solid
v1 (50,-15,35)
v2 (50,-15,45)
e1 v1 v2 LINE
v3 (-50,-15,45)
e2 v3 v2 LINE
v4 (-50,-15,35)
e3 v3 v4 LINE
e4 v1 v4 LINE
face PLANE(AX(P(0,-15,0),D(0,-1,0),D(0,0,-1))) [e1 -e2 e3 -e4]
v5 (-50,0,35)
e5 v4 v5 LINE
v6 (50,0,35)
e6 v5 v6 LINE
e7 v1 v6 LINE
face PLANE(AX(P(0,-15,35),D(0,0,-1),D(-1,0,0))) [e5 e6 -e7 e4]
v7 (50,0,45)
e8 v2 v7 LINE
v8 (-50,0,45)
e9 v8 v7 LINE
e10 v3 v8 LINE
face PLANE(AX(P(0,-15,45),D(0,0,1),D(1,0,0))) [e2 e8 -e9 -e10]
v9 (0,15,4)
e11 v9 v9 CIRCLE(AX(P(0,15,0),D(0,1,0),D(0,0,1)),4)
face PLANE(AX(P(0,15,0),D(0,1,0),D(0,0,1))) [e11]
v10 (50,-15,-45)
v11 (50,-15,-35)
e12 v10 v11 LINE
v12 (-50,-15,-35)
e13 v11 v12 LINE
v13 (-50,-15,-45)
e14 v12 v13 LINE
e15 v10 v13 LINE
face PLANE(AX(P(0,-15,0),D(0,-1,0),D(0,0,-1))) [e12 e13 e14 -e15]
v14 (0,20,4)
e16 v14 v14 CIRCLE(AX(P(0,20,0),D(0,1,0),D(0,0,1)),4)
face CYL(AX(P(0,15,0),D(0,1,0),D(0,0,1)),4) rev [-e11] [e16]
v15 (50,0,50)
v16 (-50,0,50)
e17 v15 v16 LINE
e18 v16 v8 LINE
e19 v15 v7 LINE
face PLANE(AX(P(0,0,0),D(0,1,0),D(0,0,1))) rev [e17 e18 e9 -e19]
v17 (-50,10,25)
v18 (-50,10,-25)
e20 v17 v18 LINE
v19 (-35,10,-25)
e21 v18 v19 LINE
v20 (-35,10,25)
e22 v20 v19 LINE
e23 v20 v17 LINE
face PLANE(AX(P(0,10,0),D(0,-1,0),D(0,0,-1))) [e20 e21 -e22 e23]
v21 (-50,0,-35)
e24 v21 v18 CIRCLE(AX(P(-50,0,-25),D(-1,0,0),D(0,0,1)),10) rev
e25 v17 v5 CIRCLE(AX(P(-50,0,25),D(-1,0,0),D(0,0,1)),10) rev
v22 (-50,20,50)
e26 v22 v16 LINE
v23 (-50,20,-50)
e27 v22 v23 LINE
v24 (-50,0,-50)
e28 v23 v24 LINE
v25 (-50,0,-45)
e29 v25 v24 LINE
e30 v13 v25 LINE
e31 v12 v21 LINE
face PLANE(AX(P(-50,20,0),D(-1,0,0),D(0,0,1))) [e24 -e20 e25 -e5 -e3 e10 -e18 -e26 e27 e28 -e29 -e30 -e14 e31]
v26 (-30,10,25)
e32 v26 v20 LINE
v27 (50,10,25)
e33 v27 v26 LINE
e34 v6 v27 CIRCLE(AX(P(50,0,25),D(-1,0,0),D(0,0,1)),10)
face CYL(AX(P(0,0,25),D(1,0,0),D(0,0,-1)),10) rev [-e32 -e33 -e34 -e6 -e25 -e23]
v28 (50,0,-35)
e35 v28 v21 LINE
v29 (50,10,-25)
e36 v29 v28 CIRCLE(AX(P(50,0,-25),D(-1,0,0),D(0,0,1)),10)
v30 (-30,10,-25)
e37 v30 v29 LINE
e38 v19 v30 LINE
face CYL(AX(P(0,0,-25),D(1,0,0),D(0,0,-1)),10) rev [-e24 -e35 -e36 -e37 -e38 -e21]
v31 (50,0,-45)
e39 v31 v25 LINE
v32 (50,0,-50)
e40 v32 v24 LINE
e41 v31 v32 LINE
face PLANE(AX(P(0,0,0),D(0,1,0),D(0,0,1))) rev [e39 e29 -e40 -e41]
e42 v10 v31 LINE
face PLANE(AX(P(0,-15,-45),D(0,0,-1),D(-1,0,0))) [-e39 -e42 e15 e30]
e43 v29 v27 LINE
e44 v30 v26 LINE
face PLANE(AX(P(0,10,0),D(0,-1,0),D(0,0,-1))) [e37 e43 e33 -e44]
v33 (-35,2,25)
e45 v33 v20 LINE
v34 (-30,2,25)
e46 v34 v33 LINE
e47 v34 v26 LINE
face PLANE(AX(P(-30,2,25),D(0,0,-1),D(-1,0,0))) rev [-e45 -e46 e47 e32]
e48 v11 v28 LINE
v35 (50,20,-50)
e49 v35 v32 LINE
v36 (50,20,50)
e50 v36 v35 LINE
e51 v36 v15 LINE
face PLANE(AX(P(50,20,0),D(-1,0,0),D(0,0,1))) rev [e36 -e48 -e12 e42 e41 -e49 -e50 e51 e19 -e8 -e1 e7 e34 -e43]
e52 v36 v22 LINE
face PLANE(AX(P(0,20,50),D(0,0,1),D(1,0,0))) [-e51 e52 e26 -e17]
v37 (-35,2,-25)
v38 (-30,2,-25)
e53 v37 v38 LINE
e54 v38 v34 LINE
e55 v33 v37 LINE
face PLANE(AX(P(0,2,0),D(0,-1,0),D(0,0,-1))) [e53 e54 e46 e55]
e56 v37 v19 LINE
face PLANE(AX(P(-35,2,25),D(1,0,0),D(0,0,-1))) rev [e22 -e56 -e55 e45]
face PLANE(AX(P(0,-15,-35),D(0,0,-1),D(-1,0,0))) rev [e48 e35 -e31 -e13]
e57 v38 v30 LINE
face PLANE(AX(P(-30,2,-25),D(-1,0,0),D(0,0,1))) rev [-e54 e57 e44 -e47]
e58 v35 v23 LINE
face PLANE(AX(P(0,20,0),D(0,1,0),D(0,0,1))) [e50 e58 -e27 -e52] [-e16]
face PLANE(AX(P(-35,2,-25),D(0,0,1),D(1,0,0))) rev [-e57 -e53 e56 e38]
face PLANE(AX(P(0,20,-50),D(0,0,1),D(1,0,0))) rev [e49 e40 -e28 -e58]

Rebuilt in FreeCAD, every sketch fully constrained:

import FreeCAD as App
import Part
import Sketcher


def edges_at(feature, points):
    """Names of the edges that pass closest to the given points."""
    edges = feature.Shape.Edges
    near = lambda p: min(range(len(edges)), key=lambda i: edges[i].distToShape(Part.Vertex(*p))[0])
    return sorted({f"Edge{near(p) + 1}" for p in points})


def add_polygon(sketch, points):
    """Adds a closed chain of lines whose ends are joined by coincident constraints."""
    first, n = sketch.GeometryCount, len(points)
    for a, b in zip(points, points[1:] + points[:1]):
        sketch.addGeometry(Part.LineSegment(App.Vector(*a, 0), App.Vector(*b, 0)), False)
    for i in range(n):
        sketch.addConstraint(Sketcher.Constraint("Coincident", first + i, 2, first + (i + 1) % n, 1))

doc = App.newDocument("Part")
body = doc.addObject("PartDesign::Body", "Body")

# Sketch on XZ plane
sketch1 = body.newObject("Sketcher::SketchObject", "Sketch")
sketch1.AttachmentSupport = (doc.getObject("XZ_Plane"), [""])
sketch1.MapMode = "FlatFace"
add_polygon(sketch1, [(-50, -50), (-50, 50), (50, 50), (50, -50)])  # lines 0-3
sketch1.addConstraint([
    Sketcher.Constraint("Vertical", 0),
    Sketcher.Constraint("Horizontal", 1),
    Sketcher.Constraint("Vertical", 2),
    Sketcher.Constraint("Horizontal", 3),
    Sketcher.Constraint("Symmetric", 0, 2, 2, 2, -1, 1),
    Sketcher.Constraint("Equal", 3, 0),
    Sketcher.Constraint("DistanceX", 1, 1, 1, 2, 100.0),
])
pad1 = body.newObject("PartDesign::Pad", "Pad")
pad1.Profile = sketch1
pad1.Length = 20
pad1.Reversed = True

# Sketch on XZ plane
sketch2 = body.newObject("Sketcher::SketchObject", "Sketch001")
sketch2.AttachmentSupport = (doc.getObject("XZ_Plane"), [""])
sketch2.MapMode = "FlatFace"
sketch2.AttachmentOffset = App.Placement(App.Vector(0, 0, -20), App.Rotation())
sketch2.addGeometry(Part.Circle(App.Vector(0, 0, 0), App.Vector(0, 0, 1), 4), False)
sketch2.addConstraint([
    Sketcher.Constraint("Coincident", 0, 3, -1, 1),
    Sketcher.Constraint("Diameter", 0, 8.0),
])
pocket1 = body.newObject("PartDesign::Pocket", "Pocket")
pocket1.Profile = sketch2
pocket1.Length = 5
pocket1.Reversed = True

# Sketch on XZ plane
sketch3 = body.newObject("Sketcher::SketchObject", "Sketch002")
sketch3.AttachmentSupport = (doc.getObject("XZ_Plane"), [""])
sketch3.MapMode = "FlatFace"
add_polygon(sketch3, [(-50, -35), (-50, -45), (50, -45), (50, -35)])  # lines 0-3
add_polygon(sketch3, [(-50, 45), (-50, 35), (50, 35), (50, 45)])  # lines 4-7
sketch3.addConstraint([
    Sketcher.Constraint("Vertical", 0),
    Sketcher.Constraint("Horizontal", 1),
    Sketcher.Constraint("Vertical", 2),
    Sketcher.Constraint("Horizontal", 3),
    Sketcher.Constraint("Vertical", 4),
    Sketcher.Constraint("Horizontal", 5),
    Sketcher.Constraint("Vertical", 6),
    Sketcher.Constraint("Horizontal", 7),
    Sketcher.Constraint("Symmetric", 2, 2, 4, 2, -1, 1),
    Sketcher.Constraint("Symmetric", 0, 2, 6, 2, -1, 1),
    Sketcher.Constraint("Vertical", 3, 2, 4, 2),
    Sketcher.Constraint("DistanceX", 1, 1, 1, 2, 100.0),
    Sketcher.Constraint("DistanceY", 0, 2, 0, 1, 10.0),
    Sketcher.Constraint("DistanceY", 0, 2, -1, 1, 45.0),
])
pad2 = body.newObject("PartDesign::Pad", "Pad001")
pad2.Profile = sketch3
pad2.Length = 15

# Sketch on XZ plane
sketch4 = body.newObject("Sketcher::SketchObject", "Sketch003")
sketch4.AttachmentSupport = (doc.getObject("XZ_Plane"), [""])
sketch4.MapMode = "FlatFace"
add_polygon(sketch4, [(-50, 35), (-50, -35), (50, -35), (50, 35)])  # lines 0-3
sketch4.addConstraint([
    Sketcher.Constraint("Vertical", 0),
    Sketcher.Constraint("Horizontal", 1),
    Sketcher.Constraint("Vertical", 2),
    Sketcher.Constraint("Horizontal", 3),
    Sketcher.Constraint("Symmetric", 0, 2, 2, 2, -1, 1),
    Sketcher.Constraint("DistanceX", 1, 1, 1, 2, 100.0),
    Sketcher.Constraint("DistanceY", 0, 2, 0, 1, 70.0),
])
pocket2 = body.newObject("PartDesign::Pocket", "Pocket001")
pocket2.Profile = sketch4
pocket2.Length = 10
doc.recompute()

fillet = body.newObject("PartDesign::Fillet", "Fillet")
fillet.Base = (pocket2, edges_at(pocket2, [(0, 10, -35)]))
fillet.Radius = 10
doc.recompute()

fillet2 = body.newObject("PartDesign::Fillet", "Fillet001")
fillet2.Base = (fillet, edges_at(fillet, [(0, 10, 35)]))
fillet2.Radius = 10

# Sketch on XZ plane
sketch5 = body.newObject("Sketcher::SketchObject", "Sketch004")
sketch5.AttachmentSupport = (doc.getObject("XZ_Plane"), [""])
sketch5.MapMode = "FlatFace"
sketch5.AttachmentOffset = App.Placement(App.Vector(0, 0, -10), App.Rotation())
add_polygon(sketch5, [(-35, 25), (-35, -25), (-30, -25), (-30, 25)])  # lines 0-3
sketch5.addConstraint([
    Sketcher.Constraint("Vertical", 0),
    Sketcher.Constraint("Horizontal", 1),
    Sketcher.Constraint("Vertical", 2),
    Sketcher.Constraint("Horizontal", 3),
    Sketcher.Constraint("DistanceX", 1, 1, 1, 2, 5.0),
    Sketcher.Constraint("DistanceY", 0, 2, 0, 1, 50.0),
    Sketcher.Constraint("DistanceX", 0, 2, -1, 1, 35.0),
    Sketcher.Constraint("DistanceY", 0, 2, -1, 1, 25.0),
])
pad3 = body.newObject("PartDesign::Pad", "Pad002")
pad3.Profile = sketch5
pad3.Length = 8

doc.recompute()
